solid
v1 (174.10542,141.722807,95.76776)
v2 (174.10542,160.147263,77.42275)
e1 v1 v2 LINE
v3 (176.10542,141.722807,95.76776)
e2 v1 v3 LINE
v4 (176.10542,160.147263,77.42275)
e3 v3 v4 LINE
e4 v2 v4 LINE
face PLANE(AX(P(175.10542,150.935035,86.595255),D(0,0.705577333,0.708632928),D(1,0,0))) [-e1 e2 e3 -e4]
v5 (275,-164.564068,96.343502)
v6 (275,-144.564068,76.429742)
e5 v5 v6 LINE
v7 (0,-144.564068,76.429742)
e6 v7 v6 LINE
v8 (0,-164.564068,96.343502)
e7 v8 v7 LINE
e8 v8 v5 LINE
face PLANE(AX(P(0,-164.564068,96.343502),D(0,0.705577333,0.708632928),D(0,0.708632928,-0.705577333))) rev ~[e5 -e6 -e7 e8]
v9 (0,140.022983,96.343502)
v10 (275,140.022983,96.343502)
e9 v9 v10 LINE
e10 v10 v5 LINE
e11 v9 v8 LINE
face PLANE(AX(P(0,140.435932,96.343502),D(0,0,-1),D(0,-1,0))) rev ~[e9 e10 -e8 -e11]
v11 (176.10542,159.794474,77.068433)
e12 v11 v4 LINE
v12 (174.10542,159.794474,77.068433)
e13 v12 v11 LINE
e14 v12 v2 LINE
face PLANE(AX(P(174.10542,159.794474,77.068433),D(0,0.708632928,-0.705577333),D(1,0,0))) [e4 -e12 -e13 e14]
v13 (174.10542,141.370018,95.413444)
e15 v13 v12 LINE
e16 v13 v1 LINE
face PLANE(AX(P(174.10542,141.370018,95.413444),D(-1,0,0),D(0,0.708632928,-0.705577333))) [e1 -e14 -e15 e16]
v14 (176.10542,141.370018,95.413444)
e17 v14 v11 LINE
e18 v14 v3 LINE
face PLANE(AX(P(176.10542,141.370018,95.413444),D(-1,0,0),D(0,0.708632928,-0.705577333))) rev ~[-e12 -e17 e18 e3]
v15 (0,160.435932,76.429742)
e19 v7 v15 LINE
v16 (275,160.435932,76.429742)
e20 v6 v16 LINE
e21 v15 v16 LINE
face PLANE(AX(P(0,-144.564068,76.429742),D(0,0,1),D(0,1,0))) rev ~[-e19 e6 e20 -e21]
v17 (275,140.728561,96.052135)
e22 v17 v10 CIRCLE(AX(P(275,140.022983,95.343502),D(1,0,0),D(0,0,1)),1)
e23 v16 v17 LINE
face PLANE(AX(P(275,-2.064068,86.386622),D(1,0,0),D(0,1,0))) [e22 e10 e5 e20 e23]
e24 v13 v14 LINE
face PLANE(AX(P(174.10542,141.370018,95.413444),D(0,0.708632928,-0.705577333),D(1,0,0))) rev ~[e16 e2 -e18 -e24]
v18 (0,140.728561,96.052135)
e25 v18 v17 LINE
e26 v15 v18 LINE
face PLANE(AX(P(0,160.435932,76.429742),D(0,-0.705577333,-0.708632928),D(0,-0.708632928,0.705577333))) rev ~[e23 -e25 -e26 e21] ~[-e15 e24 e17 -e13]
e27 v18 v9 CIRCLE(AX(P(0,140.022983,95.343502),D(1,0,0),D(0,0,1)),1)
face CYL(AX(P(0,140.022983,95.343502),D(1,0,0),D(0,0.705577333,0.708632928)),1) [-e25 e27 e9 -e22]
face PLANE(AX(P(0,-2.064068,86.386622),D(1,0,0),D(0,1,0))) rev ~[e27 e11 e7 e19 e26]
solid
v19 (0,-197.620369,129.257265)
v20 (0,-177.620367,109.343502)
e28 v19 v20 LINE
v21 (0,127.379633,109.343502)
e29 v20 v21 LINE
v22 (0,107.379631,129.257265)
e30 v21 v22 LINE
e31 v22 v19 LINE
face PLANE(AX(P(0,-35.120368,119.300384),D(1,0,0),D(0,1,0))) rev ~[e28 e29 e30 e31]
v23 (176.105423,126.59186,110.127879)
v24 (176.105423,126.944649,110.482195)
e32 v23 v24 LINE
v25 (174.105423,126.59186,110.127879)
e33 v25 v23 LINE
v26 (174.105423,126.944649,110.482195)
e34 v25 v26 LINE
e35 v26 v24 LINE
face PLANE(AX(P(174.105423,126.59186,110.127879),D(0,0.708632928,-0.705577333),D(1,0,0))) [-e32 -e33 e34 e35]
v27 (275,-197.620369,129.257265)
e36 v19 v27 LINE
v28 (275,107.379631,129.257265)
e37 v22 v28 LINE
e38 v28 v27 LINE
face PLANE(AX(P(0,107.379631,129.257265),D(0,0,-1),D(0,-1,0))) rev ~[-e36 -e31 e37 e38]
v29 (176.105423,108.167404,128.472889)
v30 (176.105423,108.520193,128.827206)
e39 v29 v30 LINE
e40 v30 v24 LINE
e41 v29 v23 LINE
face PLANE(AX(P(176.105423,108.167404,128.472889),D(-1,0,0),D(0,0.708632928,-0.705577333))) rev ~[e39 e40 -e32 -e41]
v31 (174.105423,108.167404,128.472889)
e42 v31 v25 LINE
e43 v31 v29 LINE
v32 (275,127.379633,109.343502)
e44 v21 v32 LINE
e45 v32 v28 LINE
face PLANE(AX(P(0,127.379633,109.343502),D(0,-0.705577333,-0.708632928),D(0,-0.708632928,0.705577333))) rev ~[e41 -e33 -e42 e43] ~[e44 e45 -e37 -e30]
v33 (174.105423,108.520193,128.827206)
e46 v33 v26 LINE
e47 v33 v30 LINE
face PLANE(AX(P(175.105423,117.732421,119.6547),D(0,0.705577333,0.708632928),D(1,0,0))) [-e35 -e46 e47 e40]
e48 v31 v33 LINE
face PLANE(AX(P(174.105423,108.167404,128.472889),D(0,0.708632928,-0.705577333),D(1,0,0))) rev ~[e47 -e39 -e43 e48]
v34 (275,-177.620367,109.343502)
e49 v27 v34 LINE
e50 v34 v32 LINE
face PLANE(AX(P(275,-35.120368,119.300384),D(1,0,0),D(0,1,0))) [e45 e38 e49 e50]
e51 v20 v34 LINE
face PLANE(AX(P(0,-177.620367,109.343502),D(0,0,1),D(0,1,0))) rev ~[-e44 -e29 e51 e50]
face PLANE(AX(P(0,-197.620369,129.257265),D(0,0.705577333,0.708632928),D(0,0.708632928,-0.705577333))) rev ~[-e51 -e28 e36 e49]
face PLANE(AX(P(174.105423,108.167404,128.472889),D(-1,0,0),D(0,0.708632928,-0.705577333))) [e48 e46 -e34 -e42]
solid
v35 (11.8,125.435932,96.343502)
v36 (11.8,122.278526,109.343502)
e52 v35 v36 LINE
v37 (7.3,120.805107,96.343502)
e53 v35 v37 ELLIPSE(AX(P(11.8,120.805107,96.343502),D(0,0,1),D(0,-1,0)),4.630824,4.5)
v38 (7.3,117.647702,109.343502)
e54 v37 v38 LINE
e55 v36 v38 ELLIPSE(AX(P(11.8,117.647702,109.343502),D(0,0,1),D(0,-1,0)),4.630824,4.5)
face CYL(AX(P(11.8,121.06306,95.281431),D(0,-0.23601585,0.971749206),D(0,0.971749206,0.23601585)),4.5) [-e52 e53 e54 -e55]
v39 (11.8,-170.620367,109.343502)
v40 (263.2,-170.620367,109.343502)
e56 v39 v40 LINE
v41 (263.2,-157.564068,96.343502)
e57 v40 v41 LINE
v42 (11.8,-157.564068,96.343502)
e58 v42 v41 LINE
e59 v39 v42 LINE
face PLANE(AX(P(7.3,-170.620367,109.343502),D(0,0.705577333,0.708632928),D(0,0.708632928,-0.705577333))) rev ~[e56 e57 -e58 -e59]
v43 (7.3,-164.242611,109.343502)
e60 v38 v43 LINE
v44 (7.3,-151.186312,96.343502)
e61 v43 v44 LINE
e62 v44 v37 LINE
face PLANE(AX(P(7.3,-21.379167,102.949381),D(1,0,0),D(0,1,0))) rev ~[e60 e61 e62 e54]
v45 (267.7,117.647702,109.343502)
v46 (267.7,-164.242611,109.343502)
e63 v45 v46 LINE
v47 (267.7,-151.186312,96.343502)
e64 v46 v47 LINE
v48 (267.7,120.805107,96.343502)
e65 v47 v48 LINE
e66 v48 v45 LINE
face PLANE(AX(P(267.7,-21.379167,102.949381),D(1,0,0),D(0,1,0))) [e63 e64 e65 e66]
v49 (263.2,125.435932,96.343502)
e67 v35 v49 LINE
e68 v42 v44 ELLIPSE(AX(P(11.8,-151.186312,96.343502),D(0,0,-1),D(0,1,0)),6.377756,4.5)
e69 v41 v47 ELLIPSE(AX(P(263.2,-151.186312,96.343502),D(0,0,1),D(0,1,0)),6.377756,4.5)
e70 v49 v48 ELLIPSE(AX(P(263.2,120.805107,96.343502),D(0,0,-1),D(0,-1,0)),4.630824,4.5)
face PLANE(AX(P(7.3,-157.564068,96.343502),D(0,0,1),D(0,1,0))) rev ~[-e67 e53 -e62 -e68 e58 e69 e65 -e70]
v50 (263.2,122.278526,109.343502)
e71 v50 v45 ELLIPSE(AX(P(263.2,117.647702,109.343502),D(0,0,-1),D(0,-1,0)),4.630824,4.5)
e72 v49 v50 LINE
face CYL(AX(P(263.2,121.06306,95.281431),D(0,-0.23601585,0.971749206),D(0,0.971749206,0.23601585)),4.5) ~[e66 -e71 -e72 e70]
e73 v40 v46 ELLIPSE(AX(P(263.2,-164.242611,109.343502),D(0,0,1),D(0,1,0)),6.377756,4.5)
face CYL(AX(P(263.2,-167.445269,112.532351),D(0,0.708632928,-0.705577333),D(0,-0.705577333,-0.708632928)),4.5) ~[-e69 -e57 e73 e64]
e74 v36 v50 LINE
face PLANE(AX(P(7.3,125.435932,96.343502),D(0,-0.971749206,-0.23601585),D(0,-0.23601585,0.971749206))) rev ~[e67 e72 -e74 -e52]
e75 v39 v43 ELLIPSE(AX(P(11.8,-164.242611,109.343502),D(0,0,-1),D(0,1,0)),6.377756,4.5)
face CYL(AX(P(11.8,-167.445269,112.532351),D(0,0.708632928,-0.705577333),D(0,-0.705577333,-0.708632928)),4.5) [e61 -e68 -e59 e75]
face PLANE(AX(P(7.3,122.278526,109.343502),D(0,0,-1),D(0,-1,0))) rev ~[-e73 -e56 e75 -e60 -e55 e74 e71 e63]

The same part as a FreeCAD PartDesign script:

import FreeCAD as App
import Part
import Sketcher
from FreeCAD import Vector


def edges_at(feature, points):
    """Names of the edges that pass closest to the given points."""
    edges = feature.Shape.Edges
    near = lambda p: min(range(len(edges)), key=lambda i: edges[i].distToShape(Part.Vertex(*p))[0])
    return sorted({f"Edge{near(p) + 1}" for p in points})


def add_polygon(sketch, points):
    """Adds a closed chain of lines whose ends are joined by coincident constraints."""
    first, n = sketch.GeometryCount, len(points)
    for a, b in zip(points, points[1:] + points[:1]):
        sketch.addGeometry(Part.LineSegment(App.Vector(*a, 0), App.Vector(*b, 0)), False)
    for i in range(n):
        sketch.addConstraint(Sketcher.Constraint("Coincident", first + i, 2, first + (i + 1) % n, 1))

doc = App.newDocument("Part")
params = doc.addObject("Spreadsheet::Sheet", "Params")
for row, (alias, value) in enumerate([
    ("sketch1_width", "305 mm"),
    ("pad1_length", "275 mm"),
    ("fillet_radius", "1 mm"),
    ("sketch2_width", "2 mm"),
    ("sketch2_height", "26 mm"),
    ("pad2_length", "0.5 mm"),
    ("sketch3_width", "283 mm"),
    ("pad3_length", "260.4 mm"),
    ("fillet2_radius", "4.5 mm"),
    ("sketch4_width", "305 mm"),
    ("pad4_length", "275 mm"),
    ("sketch5_width", "2 mm"),
    ("sketch5_height", "26 mm"),
    ("pad5_length", "0.5 mm"),
], start=1):
    params.set(f"A{row}", alias)
    params.set(f"B{row}", "=" + value)
    params.setAlias(f"B{row}", alias)

body = doc.addObject("PartDesign::Body", "Body")

sketch1 = doc.addObject("Sketcher::SketchObject", "Sketch")
body.addObject(sketch1)
sketch1.AttachmentSupport = (doc.YZ_Plane, [""])
sketch1.MapMode = "FlatFace"
add_polygon(sketch1, [(-165, 96), (-145, 76), (160, 76), (140, 96)])
sketch1.addConstraint(Sketcher.Constraint("Horizontal", 1))
sketch1.addConstraint(Sketcher.Constraint("Horizontal", 3))
sketch1.addConstraint(Sketcher.Constraint("Parallel", 0, 2))
sketch1.addConstraint(Sketcher.Constraint("DistanceX", 1, 1, 1, 2, 305.0))
sketch1.addConstraint(Sketcher.Constraint("DistanceX", 2, 2, 1, 2, 20.0))
sketch1.addConstraint(Sketcher.Constraint("DistanceX", 0, 2, -1, 1, 144.564068))
sketch1.addConstraint(Sketcher.Constraint("DistanceY", -1, 1, 0, 2, 76.429742))
sketch1.addConstraint(Sketcher.Constraint("DistanceY", 1, 2, 2, 2, 19.913761))
sketch1.setExpression("Constraints[7]", "Params.sketch1_width")
pad1 = doc.addObject("PartDesign::Pad", "Pad")
body.addObject(pad1)
pad1.Profile = sketch1
pad1.setExpression("Length", "Params.pad1_length")
doc.recompute()

fillet = doc.addObject("PartDesign::Fillet", "Fillet")
body.addObject(fillet)
fillet.Base = (pad1, edges_at(pad1, [(137.5, 140.436, 96.344)]))
fillet.setExpression("Radius", "Params.fillet_radius")

sketch2 = doc.addObject("Sketcher::SketchObject", "Sketch001")
body.addObject(sketch2)
sketch2.Placement = App.Placement(Vector(0, 118.085838, 118.597224), App.Rotation(Vector(1, 0, 0), Vector(0, 0.708632928, -0.705577333), Vector(0, 0.705577333, 0.708632928), "ZXY"))
add_polygon(sketch2, [(174.1, 58.9), (174.1, 32.9), (176.1, 32.9), (176.1, 58.9)])
sketch2.addConstraint(Sketcher.Constraint("Vertical", 0))
sketch2.addConstraint(Sketcher.Constraint("Horizontal", 1))
sketch2.addConstraint(Sketcher.Constraint("Vertical", 2))
sketch2.addConstraint(Sketcher.Constraint("Horizontal", 3))
sketch2.addConstraint(Sketcher.Constraint("DistanceX", 1, 1, 1, 2, 2.0))
sketch2.addConstraint(Sketcher.Constraint("DistanceY", 0, 2, 0, 1, 26.0))
sketch2.addConstraint(Sketcher.Constraint("DistanceX", -1, 1, 0, 2, 174.10542))
sketch2.addConstraint(Sketcher.Constraint("DistanceY", -1, 1, 0, 2, 32.857887))
sketch2.setExpression("Constraints[8]", "Params.sketch2_width")
sketch2.setExpression("Constraints[9]", "Params.sketch2_height")
pad2 = doc.addObject("PartDesign::Pad", "Pad001")
body.addObject(pad2)
pad2.Profile = sketch2
pad2.setExpression("Length", "Params.pad2_length")
body2 = doc.addObject("PartDesign::Body", "Body001")

sketch3 = doc.addObject("Sketcher::SketchObject", "Sketch002")
body2.addObject(sketch3)
sketch3.AttachmentSupport = (doc.getObject("YZ_Plane001"), [""])
sketch3.MapMode = "FlatFace"
sketch3.AttachmentOffset = App.Placement(Vector(0, 0, 7.3), App.Rotation())
add_polygon(sketch3, [(-171, 109), (-158, 96), (125, 96), (122, 109)])
sketch3.addConstraint(Sketcher.Constraint("Horizontal", 1))
sketch3.addConstraint(Sketcher.Constraint("Horizontal", 3))
sketch3.addConstraint(Sketcher.Constraint("DistanceX", 1, 1, 1, 2, 283.0))
sketch3.addConstraint(Sketcher.Constraint("DistanceY", 1, 2, 2, 2, 13.0))
sketch3.addConstraint(Sketcher.Constraint("DistanceX", 3, 2, 0, 2, 13.056298))
sketch3.addConstraint(Sketcher.Constraint("DistanceX", 3, 2, 3, 1, 292.898893))
sketch3.addConstraint(Sketcher.Constraint("DistanceX", 0, 2, -1, 1, 157.564068))
sketch3.addConstraint(Sketcher.Constraint("DistanceY", -1, 1, 0, 2, 96.343502))
sketch3.setExpression("Constraints[6]", "Params.sketch3_width")
pad3 = doc.addObject("PartDesign::Pad", "Pad002")
body2.addObject(pad3)
pad3.Profile = sketch3
pad3.setExpression("Length", "Params.pad3_length")
doc.recompute()

fillet2 = doc.addObject("PartDesign::Fillet", "Fillet001")
body2.addObject(fillet2)
fillet2.Base = (pad3, edges_at(pad3, [
    (267.7, 123.857, 102.844),
    (7.3, 123.857, 102.844),
    (267.7, -164.092, 102.844),
    (7.3, -164.092, 102.844),
]))
fillet2.setExpression("Radius", "Params.fillet2_radius")
body3 = doc.addObject("PartDesign::Body", "Body002")

sketch4 = doc.addObject("Sketcher::SketchObject", "Sketch003")
body3.addObject(sketch4)
sketch4.AttachmentSupport = (doc.getObject("YZ_Plane002"), [""])
sketch4.MapMode = "FlatFace"
add_polygon(sketch4, [(-198, 129), (-178, 109), (127, 109), (107, 129)])
sketch4.addConstraint(Sketcher.Constraint("Horizontal", 1))
sketch4.addConstraint(Sketcher.Constraint("Horizontal", 3))
sketch4.addConstraint(Sketcher.Constraint("Parallel", 0, 2))
sketch4.addConstraint(Sketcher.Constraint("DistanceX", 1, 1, 1, 2, 305.0))
sketch4.addConstraint(Sketcher.Constraint("Distance", 0, 28.22336))
sketch4.addConstraint(Sketcher.Constraint("DistanceX", -1, 1, 2, 2, 107.379631))
sketch4.addConstraint(Sketcher.Constraint("DistanceX", 0, 2, -1, 1, 177.620367))
sketch4.addConstraint(Sketcher.Constraint("DistanceY", -1, 1, 0, 2, 109.343502))
sketch4.setExpression("Constraints[7]", "Params.sketch4_width")
pad4 = doc.addObject("PartDesign::Pad", "Pad003")
body3.addObject(pad4)
pad4.Profile = sketch4
pad4.setExpression("Length", "Params.pad4_length")

sketch5 = doc.addObject("Sketcher::SketchObject", "Sketch004")
body3.addObject(sketch5)
sketch5.Placement = App.Placement(Vector(0, 118.085838, 118.597224), App.Rotation(Vector(1, 0, 0), Vector(0, 0.708632928, -0.705577333), Vector(0, 0.705577333, 0.708632928), "ZXY"))
add_polygon(sketch5, [(174.1, 12), (174.1, -14), (176.1, -14), (176.1, 12)])
sketch5.addConstraint(Sketcher.Constraint("Vertical", 0))
sketch5.addConstraint(Sketcher.Constraint("Horizontal", 1))
sketch5.addConstraint(Sketcher.Constraint("Vertical", 2))
sketch5.addConstraint(Sketcher.Constraint("Horizontal", 3))
sketch5.addConstraint(Sketcher.Constraint("DistanceX", 1, 1, 1, 2, 2.0))
sketch5.addConstraint(Sketcher.Constraint("DistanceY", 0, 2, 0, 1, 26.0))
sketch5.addConstraint(Sketcher.Constraint("DistanceX", -1, 1, 0, 2, 174.105423))
sketch5.addConstraint(Sketcher.Constraint("DistanceY", 0, 2, -1, 1, 13.996574))
sketch5.setExpression("Constraints[8]", "Params.sketch5_width")
sketch5.setExpression("Constraints[9]", "Params.sketch5_height")
pad5 = doc.addObject("PartDesign::Pad", "Pad004")
body3.addObject(pad5)
pad5.Profile = sketch5
pad5.setExpression("Length", "Params.pad5_length")

doc.recompute()
